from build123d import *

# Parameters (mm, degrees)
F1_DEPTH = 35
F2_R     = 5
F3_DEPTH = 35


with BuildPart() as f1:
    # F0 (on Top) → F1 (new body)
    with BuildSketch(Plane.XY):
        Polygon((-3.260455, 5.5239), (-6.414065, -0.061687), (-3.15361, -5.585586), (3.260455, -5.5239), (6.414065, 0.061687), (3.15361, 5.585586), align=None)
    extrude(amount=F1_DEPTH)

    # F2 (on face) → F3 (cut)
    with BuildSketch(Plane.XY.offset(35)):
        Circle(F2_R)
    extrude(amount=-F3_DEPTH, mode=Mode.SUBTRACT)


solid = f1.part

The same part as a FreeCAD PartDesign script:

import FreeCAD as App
import Part
import Sketcher
from FreeCAD import Vector


def add_polygon(sketch, points):
    """Adds a closed chain of lines whose ends are joined by coincident constraints."""
    first, n = sketch.GeometryCount, len(points)
    for a, b in zip(points, points[1:] + points[:1]):
        sketch.addGeometry(Part.LineSegment(App.Vector(*a, 0), App.Vector(*b, 0)), False)
    for i in range(n):
        sketch.addConstraint(Sketcher.Constraint("Coincident", first + i, 2, first + (i + 1) % n, 1))

doc = App.newDocument("Part")
body = doc.addObject("PartDesign::Body", "Body")

# Sketch on XY plane
sketch1 = body.newObject("Sketcher::SketchObject", "Sketch")
sketch1.AttachmentSupport = (doc.getObject("XY_Plane"), [""])
sketch1.MapMode = "FlatFace"
add_polygon(sketch1, [(-3, 6), (-6, 0), (-3, -6), (3, -6), (6, 0), (3, 6)])  # lines 0-5
sketch1.addConstraint([
    Sketcher.Constraint("Symmetric", 0, 2, 3, 2, -1, 1),
    Sketcher.Constraint("Symmetric", 1, 2, 4, 2, -1, 1),
    Sketcher.Constraint("Symmetric", 2, 2, 5, 2, -1, 1),
    Sketcher.Constraint("Equal", 0, 1),
    Sketcher.Constraint("Equal", 1, 2),
    Sketcher.Constraint("DistanceY", 2, 2, -1, 1, 5.5239),
    Sketcher.Constraint("DistanceY", 1, 2, 0, 2, 5.523899),
    Sketcher.Constraint("Distance", 0, 6.414362),
    Sketcher.Constraint("DistanceX", 1, 2, -1, 1, 3.15361),
])
pad1 = body.newObject("PartDesign::Pad", "Pad")
pad1.Profile = sketch1
pad1.Length = 35

# Sketch on XY plane
sketch2 = body.newObject("Sketcher::SketchObject", "Sketch001")
sketch2.AttachmentSupport = (doc.getObject("XY_Plane"), [""])
sketch2.MapMode = "FlatFace"
sketch2.AttachmentOffset = App.Placement(Vector(0, 0, 35), App.Rotation())
sketch2.addGeometry(Part.Circle(Vector(0, 0, 0), Vector(0, 0, 1), 5), False)
sketch2.addConstraint([
    Sketcher.Constraint("Coincident", 0, 3, -1, 1),
    Sketcher.Constraint("Diameter", 0, 10.0),
])
pocket1 = body.newObject("PartDesign::Pocket", "Pocket")
pocket1.Profile = sketch2
pocket1.Length = 35

doc.recompute()
